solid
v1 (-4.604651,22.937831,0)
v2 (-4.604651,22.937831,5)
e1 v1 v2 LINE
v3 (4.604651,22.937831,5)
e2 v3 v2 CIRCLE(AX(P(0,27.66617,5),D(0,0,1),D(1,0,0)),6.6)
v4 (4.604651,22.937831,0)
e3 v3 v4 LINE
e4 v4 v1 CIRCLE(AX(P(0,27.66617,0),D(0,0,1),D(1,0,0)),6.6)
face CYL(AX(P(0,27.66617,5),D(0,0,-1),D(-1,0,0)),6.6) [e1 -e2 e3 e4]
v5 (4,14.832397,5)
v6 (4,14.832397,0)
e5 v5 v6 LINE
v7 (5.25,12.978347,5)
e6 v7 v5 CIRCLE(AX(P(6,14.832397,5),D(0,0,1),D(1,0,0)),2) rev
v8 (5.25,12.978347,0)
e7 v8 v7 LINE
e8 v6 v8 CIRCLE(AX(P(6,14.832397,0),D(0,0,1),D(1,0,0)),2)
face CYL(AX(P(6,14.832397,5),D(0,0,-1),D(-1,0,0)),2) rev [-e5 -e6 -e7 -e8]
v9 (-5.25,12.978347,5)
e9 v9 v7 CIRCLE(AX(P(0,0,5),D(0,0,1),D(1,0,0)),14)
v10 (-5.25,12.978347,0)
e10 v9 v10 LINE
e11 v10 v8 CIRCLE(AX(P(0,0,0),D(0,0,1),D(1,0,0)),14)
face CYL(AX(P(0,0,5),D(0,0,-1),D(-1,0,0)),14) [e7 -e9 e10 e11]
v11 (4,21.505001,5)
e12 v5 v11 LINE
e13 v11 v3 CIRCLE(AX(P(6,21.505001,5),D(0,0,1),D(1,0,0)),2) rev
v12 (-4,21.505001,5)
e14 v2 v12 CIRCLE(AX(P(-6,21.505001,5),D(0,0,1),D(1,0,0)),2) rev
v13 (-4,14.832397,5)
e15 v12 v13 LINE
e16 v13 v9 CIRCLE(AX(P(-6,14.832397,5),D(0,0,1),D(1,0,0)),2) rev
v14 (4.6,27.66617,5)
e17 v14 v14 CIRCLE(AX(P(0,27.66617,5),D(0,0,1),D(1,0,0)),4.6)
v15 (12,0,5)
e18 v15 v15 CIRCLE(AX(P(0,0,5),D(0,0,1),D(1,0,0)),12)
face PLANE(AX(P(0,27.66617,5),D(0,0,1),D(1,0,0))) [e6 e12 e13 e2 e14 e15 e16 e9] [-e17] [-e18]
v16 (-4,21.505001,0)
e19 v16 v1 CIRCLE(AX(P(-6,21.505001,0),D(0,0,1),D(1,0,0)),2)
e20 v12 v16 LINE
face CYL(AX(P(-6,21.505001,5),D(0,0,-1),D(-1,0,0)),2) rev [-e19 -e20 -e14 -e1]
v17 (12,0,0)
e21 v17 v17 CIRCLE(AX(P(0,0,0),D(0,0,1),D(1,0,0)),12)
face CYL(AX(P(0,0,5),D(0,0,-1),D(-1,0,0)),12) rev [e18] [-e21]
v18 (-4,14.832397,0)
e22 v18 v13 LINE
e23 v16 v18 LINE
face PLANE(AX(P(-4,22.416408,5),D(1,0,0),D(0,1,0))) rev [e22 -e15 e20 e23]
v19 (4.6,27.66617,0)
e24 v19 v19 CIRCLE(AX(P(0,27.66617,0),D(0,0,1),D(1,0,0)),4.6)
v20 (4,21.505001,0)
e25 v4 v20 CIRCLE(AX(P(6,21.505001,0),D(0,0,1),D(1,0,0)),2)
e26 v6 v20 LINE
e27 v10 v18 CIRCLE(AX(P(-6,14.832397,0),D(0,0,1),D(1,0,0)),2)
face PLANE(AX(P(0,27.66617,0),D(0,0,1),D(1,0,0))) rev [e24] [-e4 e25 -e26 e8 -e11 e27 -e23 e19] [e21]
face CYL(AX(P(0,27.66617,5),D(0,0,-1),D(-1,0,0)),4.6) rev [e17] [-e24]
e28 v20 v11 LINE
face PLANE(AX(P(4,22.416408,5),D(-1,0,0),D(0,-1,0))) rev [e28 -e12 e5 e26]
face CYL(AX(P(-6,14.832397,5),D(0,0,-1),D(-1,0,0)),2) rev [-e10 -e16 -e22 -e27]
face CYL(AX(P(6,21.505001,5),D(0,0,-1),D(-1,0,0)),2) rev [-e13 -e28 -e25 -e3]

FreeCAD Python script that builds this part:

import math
import FreeCAD as App
import Part
import Sketcher
from FreeCAD import Vector


def edges_at(feature, points):
    """Names of the edges that pass closest to the given points."""
    edges = feature.Shape.Edges
    near = lambda p: min(range(len(edges)), key=lambda i: edges[i].distToShape(Part.Vertex(*p))[0])
    return sorted({f"Edge{near(p) + 1}" for p in points})

doc = App.newDocument("Part")
body = doc.addObject("PartDesign::Body", "Body")

# Sketch on XY plane
sketch1 = body.newObject("Sketcher::SketchObject", "Sketch")
sketch1.AttachmentSupport = (doc.getObject("XY_Plane"), [""])
sketch1.MapMode = "FlatFace"
sketch1.addGeometry(Part.LineSegment(Vector(-4, 22.416408, 0), Vector(-4, 13.416408, 0)), False)
sketch1.addGeometry(Part.ArcOfCircle(Part.Circle(Vector(0, 0, 0), Vector(0, 0, 1), 14), math.radians(106.60155), math.radians(433.39845)), False)
sketch1.addGeometry(Part.LineSegment(Vector(4, 13.416408, 0), Vector(4, 22.416408, 0)), False)
sketch1.addGeometry(Part.ArcOfCircle(Part.Circle(Vector(0, 27.66617, 0), Vector(0, 0, 1), 6.6), math.radians(-52.694799), math.radians(232.694799)), False)
sketch1.addGeometry(Part.Circle(Vector(0, 0, 0), Vector(0, 0, 1), 12), False)
sketch1.addGeometry(Part.Circle(Vector(0, 27.66617, 0), Vector(0, 0, 1), 4.6), False)
sketch1.addConstraint(Sketcher.Constraint("Coincident", 0, 2, 1, 1))
sketch1.addConstraint(Sketcher.Constraint("Coincident", 1, 2, 2, 1))
sketch1.addConstraint(Sketcher.Constraint("Coincident", 2, 2, 3, 1))
sketch1.addConstraint(Sketcher.Constraint("Coincident", 3, 2, 0, 1))
sketch1.addConstraint(Sketcher.Constraint("Vertical", 0))
sketch1.addConstraint(Sketcher.Constraint("Vertical", 2))
sketch1.addConstraint(Sketcher.Constraint("Coincident", 1, 3, -1, 1))
sketch1.addConstraint(Sketcher.Constraint("Coincident", 4, 3, -1, 1))
sketch1.addConstraint(Sketcher.Constraint("Coincident", 5, 3, 3, 3))
sketch1.addConstraint(Sketcher.Constraint("Symmetric", 2, 2, 3, 2, -2))
sketch1.addConstraint(Sketcher.Constraint("Diameter", 4, 24.0))
sketch1.addConstraint(Sketcher.Constraint("Radius", 1, 14.0))
sketch1.addConstraint(Sketcher.Constraint("Diameter", 5, 9.2))
sketch1.addConstraint(Sketcher.Constraint("Radius", 3, 6.6))
sketch1.addConstraint(Sketcher.Constraint("DistanceY", 0, 2, 0, 1, 9.0))
sketch1.addConstraint(Sketcher.Constraint("DistanceX", 0, 2, -1, 1, 4.0))
pad1 = body.newObject("PartDesign::Pad", "Pad")
pad1.Profile = sketch1
pad1.Length = 5
doc.recompute()

fillet = body.newObject("PartDesign::Fillet", "Fillet")
fillet.Base = (pad1, edges_at(pad1, [
    (4, 22.416, 2.5),
    (4, 13.416, 2.5),
    (-4, 13.416, 2.5),
    (-4, 22.416, 2.5),
]))
fillet.Radius = 2

doc.recompute()
